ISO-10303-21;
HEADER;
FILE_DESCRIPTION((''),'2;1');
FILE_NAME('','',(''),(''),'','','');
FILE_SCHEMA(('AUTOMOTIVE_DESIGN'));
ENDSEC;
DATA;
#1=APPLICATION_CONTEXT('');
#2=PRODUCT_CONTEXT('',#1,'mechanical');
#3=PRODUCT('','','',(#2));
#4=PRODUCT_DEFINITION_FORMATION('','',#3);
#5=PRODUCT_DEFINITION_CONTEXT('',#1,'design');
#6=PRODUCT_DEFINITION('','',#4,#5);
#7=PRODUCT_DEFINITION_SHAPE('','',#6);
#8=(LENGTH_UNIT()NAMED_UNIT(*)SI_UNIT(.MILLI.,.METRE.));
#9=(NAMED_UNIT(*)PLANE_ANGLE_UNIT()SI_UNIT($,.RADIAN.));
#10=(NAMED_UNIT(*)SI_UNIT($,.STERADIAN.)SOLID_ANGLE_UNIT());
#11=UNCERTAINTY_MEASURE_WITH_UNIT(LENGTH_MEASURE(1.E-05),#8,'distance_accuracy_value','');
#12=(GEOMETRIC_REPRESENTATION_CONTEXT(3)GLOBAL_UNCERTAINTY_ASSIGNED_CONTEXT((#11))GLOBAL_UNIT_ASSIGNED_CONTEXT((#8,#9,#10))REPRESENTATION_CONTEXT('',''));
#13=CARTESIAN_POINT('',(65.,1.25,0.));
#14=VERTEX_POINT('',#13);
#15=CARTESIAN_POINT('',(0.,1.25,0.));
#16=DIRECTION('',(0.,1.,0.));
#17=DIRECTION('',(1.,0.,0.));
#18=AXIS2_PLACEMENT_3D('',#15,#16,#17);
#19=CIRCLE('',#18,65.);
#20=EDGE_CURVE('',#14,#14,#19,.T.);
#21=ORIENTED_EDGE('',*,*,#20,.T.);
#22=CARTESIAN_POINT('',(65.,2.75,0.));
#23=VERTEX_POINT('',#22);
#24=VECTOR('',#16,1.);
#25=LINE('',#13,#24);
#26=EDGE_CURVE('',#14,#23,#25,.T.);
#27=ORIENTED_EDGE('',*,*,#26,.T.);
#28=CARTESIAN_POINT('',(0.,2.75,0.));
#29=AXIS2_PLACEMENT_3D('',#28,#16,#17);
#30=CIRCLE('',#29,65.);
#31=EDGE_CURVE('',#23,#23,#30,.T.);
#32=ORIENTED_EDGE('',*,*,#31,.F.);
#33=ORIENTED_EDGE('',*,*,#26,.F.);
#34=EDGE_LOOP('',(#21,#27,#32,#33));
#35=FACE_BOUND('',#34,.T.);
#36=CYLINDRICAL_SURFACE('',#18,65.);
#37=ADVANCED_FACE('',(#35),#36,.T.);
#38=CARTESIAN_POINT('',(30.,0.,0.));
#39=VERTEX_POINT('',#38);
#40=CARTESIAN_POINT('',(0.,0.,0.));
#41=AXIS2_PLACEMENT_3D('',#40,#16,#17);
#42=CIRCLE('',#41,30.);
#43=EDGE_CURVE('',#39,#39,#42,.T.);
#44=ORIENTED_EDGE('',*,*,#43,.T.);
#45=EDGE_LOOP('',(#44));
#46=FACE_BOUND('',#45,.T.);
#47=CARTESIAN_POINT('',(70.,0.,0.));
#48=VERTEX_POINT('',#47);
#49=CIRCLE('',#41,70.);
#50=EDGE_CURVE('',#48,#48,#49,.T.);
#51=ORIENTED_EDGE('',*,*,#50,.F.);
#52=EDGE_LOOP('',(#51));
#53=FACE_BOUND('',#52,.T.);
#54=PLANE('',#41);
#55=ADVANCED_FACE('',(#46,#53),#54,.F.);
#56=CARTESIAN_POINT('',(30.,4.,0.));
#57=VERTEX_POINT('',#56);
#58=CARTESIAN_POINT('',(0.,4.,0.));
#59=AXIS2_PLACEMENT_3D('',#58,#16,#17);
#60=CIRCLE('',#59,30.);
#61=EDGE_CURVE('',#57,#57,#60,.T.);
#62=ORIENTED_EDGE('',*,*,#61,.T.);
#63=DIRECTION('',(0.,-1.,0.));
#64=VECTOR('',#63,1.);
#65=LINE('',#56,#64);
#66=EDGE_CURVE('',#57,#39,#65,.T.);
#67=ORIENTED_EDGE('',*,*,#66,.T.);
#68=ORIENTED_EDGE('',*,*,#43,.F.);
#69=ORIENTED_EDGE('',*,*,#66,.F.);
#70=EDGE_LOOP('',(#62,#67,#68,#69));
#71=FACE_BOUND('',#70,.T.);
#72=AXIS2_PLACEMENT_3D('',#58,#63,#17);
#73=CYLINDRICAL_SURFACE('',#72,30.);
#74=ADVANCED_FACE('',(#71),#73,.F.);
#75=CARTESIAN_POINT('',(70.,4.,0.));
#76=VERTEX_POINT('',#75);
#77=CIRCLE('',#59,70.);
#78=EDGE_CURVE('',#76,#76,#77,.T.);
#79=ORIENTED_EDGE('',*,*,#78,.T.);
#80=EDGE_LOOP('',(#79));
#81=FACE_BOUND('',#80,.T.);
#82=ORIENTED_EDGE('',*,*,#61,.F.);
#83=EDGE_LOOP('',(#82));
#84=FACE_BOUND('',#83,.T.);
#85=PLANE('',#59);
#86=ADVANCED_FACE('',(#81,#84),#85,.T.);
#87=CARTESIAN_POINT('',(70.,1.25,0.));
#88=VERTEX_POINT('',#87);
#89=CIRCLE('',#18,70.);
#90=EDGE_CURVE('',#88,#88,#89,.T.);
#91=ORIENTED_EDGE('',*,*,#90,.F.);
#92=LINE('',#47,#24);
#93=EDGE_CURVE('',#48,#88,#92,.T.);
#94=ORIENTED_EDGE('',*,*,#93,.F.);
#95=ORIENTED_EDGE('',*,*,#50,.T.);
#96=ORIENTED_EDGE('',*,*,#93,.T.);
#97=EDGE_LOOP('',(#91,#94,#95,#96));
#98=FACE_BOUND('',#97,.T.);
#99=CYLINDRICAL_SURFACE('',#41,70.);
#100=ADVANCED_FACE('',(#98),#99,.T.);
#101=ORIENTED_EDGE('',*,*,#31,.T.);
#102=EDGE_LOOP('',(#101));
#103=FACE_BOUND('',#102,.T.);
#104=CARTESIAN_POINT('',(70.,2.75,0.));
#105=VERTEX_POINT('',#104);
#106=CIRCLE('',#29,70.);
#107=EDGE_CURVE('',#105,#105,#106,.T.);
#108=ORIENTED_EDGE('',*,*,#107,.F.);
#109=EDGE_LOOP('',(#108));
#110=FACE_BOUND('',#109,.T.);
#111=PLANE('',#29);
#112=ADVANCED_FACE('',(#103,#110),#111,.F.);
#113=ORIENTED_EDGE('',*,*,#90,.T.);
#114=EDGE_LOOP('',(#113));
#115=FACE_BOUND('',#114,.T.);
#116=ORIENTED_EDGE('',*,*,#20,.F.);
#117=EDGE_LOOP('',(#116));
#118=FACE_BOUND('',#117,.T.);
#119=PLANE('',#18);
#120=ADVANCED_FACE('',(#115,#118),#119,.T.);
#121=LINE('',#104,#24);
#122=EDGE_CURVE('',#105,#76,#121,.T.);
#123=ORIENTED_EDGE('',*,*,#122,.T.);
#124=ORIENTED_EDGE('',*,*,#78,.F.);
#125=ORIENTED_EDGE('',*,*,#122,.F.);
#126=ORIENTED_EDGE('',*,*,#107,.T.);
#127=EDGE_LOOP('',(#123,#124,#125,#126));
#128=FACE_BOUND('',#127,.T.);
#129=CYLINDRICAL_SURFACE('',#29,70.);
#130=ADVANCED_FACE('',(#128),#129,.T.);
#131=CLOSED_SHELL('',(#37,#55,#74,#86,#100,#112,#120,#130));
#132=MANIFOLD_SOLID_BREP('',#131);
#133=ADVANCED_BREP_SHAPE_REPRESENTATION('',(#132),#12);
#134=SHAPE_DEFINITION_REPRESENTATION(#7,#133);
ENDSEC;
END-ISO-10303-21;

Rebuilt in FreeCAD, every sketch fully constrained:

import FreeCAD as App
import Part
import Sketcher
from FreeCAD import Vector


def add_polygon(sketch, points):
    """Adds a closed chain of lines whose ends are joined by coincident constraints."""
    first, n = sketch.GeometryCount, len(points)
    for a, b in zip(points, points[1:] + points[:1]):
        sketch.addGeometry(Part.LineSegment(App.Vector(*a, 0), App.Vector(*b, 0)), False)
    for i in range(n):
        sketch.addConstraint(Sketcher.Constraint("Coincident", first + i, 2, first + (i + 1) % n, 1))

doc = App.newDocument("Part")
body = doc.addObject("PartDesign::Body", "Body")

# Sketch on XY plane
sketch1 = body.newObject("Sketcher::SketchObject", "Sketch")
sketch1.AttachmentSupport = (doc.getObject("XY_Plane"), [""])
sketch1.MapMode = "FlatFace"
add_polygon(sketch1, [(70, 0), (70, 1.2), (65, 1.2), (65, 2.8), (70, 2.8), (70, 4), (30, 4), (30, 0)])  # lines 0-7
sketch1.addConstraint([
    Sketcher.Constraint("Vertical", 0),
    Sketcher.Constraint("Horizontal", 1),
    Sketcher.Constraint("Vertical", 2),
    Sketcher.Constraint("Horizontal", 3),
    Sketcher.Constraint("Vertical", 4),
    Sketcher.Constraint("Horizontal", 5),
    Sketcher.Constraint("Vertical", 6),
    Sketcher.Constraint("Horizontal", 7),
    Sketcher.Constraint("PointOnObject", 6, 2, -1),
    Sketcher.Constraint("Vertical", 0, 2, 3, 2),
    Sketcher.Constraint("Equal", 0, 4),
    Sketcher.Constraint("DistanceX", 1, 2, 1, 1, 5.0),
    Sketcher.Constraint("DistanceX", 5, 2, 5, 1, 40.0),
    Sketcher.Constraint("DistanceY", 6, 2, 6, 1, 4.0),
    Sketcher.Constraint("DistanceY", 2, 1, 2, 2, 1.5),
    Sketcher.Constraint("DistanceX", -1, 1, 0, 2, 70.0),
])
revolution = body.newObject("PartDesign::Revolution", "Revolution")
revolution.Profile = sketch1
revolution.ReferenceAxis = (sketch1, ["V_Axis"])
revolution.Angle = 360

doc.recompute()
